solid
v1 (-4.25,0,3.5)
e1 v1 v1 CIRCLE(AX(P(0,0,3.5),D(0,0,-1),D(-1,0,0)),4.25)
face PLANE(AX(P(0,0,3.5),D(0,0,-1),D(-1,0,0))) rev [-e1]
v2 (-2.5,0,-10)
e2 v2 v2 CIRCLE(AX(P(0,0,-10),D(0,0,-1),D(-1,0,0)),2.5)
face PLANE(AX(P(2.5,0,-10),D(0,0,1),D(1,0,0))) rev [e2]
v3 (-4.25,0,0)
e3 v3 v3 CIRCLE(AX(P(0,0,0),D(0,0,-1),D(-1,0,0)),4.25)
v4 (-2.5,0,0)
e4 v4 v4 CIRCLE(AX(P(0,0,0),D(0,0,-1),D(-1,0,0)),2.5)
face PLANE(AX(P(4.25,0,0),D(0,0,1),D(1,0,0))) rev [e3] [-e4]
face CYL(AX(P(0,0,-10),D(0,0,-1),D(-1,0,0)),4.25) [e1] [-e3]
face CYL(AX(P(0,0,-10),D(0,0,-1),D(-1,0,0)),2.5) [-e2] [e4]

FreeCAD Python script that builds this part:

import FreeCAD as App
import Part
import Sketcher
from FreeCAD import Vector

doc = App.newDocument("Part")
params = doc.addObject("Spreadsheet::Sheet", "Params")
for row, (alias, value) in enumerate([
    ("sketch1_height", "10 mm"),
    ("sketch1_width", "2.5 mm"),
    ("sketch1_height2", "3.5 mm"),
    ("sketch1_width2", "4.25 mm"),
    ("revolution_angle", "360 deg"),
], start=1):
    params.set(f"A{row}", alias)
    params.set(f"B{row}", "=" + value)
    params.setAlias(f"B{row}", alias)

body = doc.addObject("PartDesign::Body", "Body")

# Sketch on XZ plane
sketch1 = body.newObject("Sketcher::SketchObject", "Sketch")
sketch1.AttachmentSupport = (doc.getObject("XZ_Plane"), [""])
sketch1.MapMode = "FlatFace"
sketch1.addGeometry([
    Part.LineSegment(Vector(0, 3.5, 0), Vector(4.2, 3.5, 0)),  # 0
    Part.LineSegment(Vector(4.2, 3.5, 0), Vector(4.2, 0, 0)),  # 1
    Part.LineSegment(Vector(4.2, 0, 0), Vector(2.5, 0, 0)),  # 2
    Part.LineSegment(Vector(2.5, 0, 0), Vector(2.5, -10, 0)),  # 3
    Part.LineSegment(Vector(2.5, -10, 0), Vector(0, -10, 0)),  # 4
    Part.LineSegment(Vector(0, -10, 0), Vector(0, 3.5, 0)),  # 5
], False)
sketch1.addConstraint([
    Sketcher.Constraint("Coincident", 0, 2, 1, 1),
    Sketcher.Constraint("Coincident", 1, 2, 2, 1),
    Sketcher.Constraint("Coincident", 2, 2, 3, 1),
    Sketcher.Constraint("Coincident", 3, 2, 4, 1),
    Sketcher.Constraint("Coincident", 4, 2, 5, 1),
    Sketcher.Constraint("Coincident", 5, 2, 0, 1),
    Sketcher.Constraint("Horizontal", 0),
    Sketcher.Constraint("Vertical", 1),
    Sketcher.Constraint("Horizontal", 2),
    Sketcher.Constraint("Vertical", 3),
    Sketcher.Constraint("Horizontal", 4),
    Sketcher.Constraint("Vertical", 5),
    Sketcher.Constraint("PointOnObject", 1, 2, -1),
    Sketcher.Constraint("PointOnObject", 4, 2, -2),
    Sketcher.Constraint("DistanceY", 3, 2, 3, 1, 10.0),
    Sketcher.Constraint("DistanceX", 4, 2, 4, 1, 2.5),
    Sketcher.Constraint("DistanceY", 1, 2, 1, 1, 3.5),
    Sketcher.Constraint("DistanceX", 0, 1, 0, 2, 4.25),
])
sketch1.setExpression("Constraints[14]", "Params.sketch1_height")
sketch1.setExpression("Constraints[15]", "Params.sketch1_width")
sketch1.setExpression("Constraints[16]", "Params.sketch1_height2")
sketch1.setExpression("Constraints[17]", "Params.sketch1_width2")
revolution = body.newObject("PartDesign::Revolution", "Revolution")
revolution.Profile = sketch1
revolution.ReferenceAxis = (sketch1, ["V_Axis"])
revolution.setExpression("Angle", "Params.revolution_angle")

doc.recompute()
